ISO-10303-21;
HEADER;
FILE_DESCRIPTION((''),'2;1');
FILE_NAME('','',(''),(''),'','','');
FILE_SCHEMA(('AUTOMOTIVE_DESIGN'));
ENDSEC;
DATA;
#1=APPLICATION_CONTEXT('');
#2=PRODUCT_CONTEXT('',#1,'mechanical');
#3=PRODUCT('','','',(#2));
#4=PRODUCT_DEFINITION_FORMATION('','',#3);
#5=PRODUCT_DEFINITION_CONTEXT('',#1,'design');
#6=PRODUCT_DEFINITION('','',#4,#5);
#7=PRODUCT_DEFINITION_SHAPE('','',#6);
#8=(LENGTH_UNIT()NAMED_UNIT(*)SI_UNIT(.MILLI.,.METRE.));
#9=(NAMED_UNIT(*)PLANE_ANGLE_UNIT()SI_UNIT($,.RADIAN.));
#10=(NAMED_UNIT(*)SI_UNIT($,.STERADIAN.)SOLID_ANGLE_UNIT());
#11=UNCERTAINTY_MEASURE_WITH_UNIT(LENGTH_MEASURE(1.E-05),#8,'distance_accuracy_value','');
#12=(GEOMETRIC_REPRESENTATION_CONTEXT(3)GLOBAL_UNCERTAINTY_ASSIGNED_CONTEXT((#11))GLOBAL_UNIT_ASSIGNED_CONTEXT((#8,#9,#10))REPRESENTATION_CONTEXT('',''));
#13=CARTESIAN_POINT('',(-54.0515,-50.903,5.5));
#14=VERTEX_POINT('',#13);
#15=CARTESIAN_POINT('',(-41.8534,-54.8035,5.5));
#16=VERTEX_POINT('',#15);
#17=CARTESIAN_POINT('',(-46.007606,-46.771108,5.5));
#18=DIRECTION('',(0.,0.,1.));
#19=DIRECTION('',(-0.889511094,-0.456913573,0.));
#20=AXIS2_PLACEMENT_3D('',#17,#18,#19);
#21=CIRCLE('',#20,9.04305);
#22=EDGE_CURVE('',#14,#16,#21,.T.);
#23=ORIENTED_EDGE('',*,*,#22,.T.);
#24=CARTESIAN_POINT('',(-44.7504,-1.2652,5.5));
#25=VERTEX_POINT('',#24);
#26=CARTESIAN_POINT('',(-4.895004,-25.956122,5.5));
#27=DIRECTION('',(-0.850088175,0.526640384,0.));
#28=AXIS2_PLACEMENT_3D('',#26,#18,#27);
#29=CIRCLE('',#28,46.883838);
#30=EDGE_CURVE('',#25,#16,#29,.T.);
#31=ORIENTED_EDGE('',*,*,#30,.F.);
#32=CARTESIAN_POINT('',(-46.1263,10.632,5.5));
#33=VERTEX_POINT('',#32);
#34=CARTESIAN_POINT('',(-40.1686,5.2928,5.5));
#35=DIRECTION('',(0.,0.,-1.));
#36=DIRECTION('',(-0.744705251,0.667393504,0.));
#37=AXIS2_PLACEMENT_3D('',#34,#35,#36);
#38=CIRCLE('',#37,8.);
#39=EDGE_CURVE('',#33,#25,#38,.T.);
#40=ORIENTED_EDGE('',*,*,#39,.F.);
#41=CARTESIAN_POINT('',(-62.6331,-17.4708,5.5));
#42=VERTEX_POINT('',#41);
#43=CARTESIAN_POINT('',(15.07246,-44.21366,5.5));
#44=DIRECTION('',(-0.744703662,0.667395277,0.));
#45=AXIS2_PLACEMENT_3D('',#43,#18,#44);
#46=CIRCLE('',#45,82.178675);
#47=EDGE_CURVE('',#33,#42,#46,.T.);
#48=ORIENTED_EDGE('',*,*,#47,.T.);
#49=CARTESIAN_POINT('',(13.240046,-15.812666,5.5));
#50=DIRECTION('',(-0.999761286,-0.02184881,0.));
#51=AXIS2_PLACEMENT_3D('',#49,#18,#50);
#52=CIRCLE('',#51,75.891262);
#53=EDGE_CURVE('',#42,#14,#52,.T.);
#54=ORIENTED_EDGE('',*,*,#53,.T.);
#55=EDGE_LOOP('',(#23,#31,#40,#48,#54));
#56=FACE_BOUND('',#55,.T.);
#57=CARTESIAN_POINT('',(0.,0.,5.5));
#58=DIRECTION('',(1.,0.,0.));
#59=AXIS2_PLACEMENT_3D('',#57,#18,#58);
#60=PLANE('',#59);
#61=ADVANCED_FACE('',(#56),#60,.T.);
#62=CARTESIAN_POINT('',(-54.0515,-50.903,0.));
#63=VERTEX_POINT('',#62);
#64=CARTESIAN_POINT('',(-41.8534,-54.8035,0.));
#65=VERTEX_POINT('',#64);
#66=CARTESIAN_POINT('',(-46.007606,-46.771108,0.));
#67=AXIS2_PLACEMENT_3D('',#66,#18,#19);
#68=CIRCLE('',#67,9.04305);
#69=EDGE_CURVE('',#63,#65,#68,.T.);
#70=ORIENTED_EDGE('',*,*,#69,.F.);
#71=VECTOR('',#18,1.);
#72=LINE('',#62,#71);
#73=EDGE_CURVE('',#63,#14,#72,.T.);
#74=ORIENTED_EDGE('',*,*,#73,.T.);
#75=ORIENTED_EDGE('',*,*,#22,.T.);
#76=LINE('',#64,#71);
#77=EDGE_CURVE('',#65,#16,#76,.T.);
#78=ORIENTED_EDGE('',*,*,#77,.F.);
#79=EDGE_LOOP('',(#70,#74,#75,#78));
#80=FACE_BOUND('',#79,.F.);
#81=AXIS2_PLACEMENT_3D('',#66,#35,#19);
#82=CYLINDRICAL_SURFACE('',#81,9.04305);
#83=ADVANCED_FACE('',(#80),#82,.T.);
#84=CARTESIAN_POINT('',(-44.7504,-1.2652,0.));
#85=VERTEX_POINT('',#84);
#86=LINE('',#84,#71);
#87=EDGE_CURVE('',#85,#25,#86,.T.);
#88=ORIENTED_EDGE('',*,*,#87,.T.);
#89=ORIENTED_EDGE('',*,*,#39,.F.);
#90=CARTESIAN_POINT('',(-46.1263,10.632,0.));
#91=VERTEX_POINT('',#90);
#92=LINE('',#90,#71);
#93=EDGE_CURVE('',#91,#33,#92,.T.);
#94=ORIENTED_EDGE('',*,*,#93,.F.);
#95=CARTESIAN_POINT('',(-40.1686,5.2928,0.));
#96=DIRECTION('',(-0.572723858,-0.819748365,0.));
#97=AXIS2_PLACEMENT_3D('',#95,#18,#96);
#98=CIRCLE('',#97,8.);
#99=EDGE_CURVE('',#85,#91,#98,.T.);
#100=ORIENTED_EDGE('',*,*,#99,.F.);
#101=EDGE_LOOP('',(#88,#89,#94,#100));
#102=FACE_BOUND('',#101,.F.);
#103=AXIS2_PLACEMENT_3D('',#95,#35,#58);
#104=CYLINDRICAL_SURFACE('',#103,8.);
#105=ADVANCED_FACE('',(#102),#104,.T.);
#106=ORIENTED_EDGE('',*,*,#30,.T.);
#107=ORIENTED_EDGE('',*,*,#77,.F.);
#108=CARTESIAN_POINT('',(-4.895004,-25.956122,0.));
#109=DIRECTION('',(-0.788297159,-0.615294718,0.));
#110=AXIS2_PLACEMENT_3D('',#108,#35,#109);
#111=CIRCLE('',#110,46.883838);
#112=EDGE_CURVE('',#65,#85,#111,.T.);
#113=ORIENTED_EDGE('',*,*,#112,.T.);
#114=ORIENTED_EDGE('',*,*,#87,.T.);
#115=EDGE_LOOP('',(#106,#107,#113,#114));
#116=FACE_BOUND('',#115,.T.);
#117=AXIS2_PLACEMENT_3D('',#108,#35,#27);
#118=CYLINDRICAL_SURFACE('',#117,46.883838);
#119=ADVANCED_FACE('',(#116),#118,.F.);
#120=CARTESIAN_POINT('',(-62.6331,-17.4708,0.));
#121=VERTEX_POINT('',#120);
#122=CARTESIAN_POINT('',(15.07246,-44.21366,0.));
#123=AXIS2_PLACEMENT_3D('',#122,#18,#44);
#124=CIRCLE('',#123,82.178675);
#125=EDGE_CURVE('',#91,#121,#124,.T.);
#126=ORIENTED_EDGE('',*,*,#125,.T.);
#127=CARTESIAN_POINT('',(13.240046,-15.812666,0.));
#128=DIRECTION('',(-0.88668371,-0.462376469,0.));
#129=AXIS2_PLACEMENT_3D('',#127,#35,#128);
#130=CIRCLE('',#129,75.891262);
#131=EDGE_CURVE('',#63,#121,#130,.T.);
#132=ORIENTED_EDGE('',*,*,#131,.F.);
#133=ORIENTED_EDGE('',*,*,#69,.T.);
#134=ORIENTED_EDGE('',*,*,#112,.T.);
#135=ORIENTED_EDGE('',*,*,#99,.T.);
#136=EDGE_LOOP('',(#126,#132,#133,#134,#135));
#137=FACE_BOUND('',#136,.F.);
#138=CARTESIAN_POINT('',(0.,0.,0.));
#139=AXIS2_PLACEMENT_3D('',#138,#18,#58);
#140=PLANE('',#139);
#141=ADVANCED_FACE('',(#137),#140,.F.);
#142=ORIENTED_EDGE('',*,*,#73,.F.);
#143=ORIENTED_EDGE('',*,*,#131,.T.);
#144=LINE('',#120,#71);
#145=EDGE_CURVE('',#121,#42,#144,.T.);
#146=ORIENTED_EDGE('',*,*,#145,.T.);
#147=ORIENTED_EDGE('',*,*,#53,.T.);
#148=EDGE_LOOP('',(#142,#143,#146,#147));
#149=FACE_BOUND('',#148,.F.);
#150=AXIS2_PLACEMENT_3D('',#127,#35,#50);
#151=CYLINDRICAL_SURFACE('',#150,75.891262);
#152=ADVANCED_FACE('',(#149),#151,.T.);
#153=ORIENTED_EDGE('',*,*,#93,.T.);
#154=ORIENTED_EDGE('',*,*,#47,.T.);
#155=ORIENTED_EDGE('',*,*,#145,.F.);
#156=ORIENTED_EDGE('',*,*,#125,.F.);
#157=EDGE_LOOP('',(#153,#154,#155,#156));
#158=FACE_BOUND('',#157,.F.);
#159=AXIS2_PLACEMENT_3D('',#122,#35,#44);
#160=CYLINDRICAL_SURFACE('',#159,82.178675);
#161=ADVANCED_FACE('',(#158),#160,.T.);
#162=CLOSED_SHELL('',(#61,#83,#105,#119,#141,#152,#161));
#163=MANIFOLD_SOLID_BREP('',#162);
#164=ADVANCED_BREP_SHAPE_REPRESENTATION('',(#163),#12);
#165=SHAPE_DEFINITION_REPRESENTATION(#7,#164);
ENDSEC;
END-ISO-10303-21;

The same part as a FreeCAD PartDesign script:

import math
import FreeCAD as App
import Part
import Sketcher

doc = App.newDocument("Part")
body = doc.addObject("PartDesign::Body", "Body")

# Sketch on XY plane
sketch1 = body.newObject("Sketcher::SketchObject", "Sketch")
sketch1.AttachmentSupport = (doc.getObject("XY_Plane"), [""])
sketch1.MapMode = "FlatFace"
sketch1.addGeometry(Part.ArcOfCircle(Part.Circle(App.Vector(-40.1686, 5.2928, 0), App.Vector(0, 0, 1), 8), math.radians(-124.940388), math.radians(138.133788)), False)
sketch1.addGeometry(Part.ArcOfCircle(Part.Circle(App.Vector(15.0732, -44.2142, 0), App.Vector(0, 0, 1), 82.179587), math.radians(138.133716), math.radians(161.008586)), False)
sketch1.addGeometry(Part.ArcOfCircle(Part.Circle(App.Vector(13.2398, -15.8127, 0), App.Vector(0, 0, 1), 75.891016), math.radians(-178.748077), math.radians(-152.459373)), False)
sketch1.addGeometry(Part.ArcOfCircle(Part.Circle(App.Vector(-46.0076, -46.7711, 0), App.Vector(0, 0, 1), 9.043059), math.radians(-152.811851), math.radians(-62.65288)), False)
sketch1.addGeometry(Part.ArcOfCircle(Part.Circle(App.Vector(-4.8947, -25.9562, 0), App.Vector(0, 0, 1), 46.884137), math.radians(148.221376), math.radians(217.973035)), False)
sketch1.addConstraint(Sketcher.Constraint("Tangent", 0, 2, 1, 1))
sketch1.addConstraint(Sketcher.Constraint("Coincident", 1, 2, 2, 1))
sketch1.addConstraint(Sketcher.Constraint("Coincident", 2, 2, 3, 1))
sketch1.addConstraint(Sketcher.Constraint("Coincident", 3, 2, 4, 2))
sketch1.addConstraint(Sketcher.Constraint("Coincident", 4, 1, 0, 1))
sketch1.addConstraint(Sketcher.Constraint("Radius", 0, 8.0))
sketch1.addConstraint(Sketcher.Constraint("Radius", 2, 75.891))
sketch1.addConstraint(Sketcher.Constraint("Radius", 3, 9.043))
sketch1.addConstraint(Sketcher.Constraint("Radius", 1, 82.1796))
sketch1.addConstraint(Sketcher.Constraint("Radius", 4, 46.8841))
sketch1.addConstraint(Sketcher.Constraint("DistanceY", 3, 3, -1, 1, 46.771))
sketch1.addConstraint(Sketcher.Constraint("DistanceY", -1, 1, 0, 2, 10.632))
sketch1.addConstraint(Sketcher.Constraint("DistanceY", 2, 2, -1, 1, 50.903))
sketch1.addConstraint(Sketcher.Constraint("DistanceY", 1, 3, 0, 3, 49.507))
sketch1.addConstraint(Sketcher.Constraint("DistanceX", 3, 3, 0, 3, 5.839))
sketch1.addConstraint(Sketcher.Constraint("DistanceX", 4, 3, 1, 3, 19.968))
sketch1.addConstraint(Sketcher.Constraint("DistanceY", 1, 3, 4, 3, 18.258))
sketch1.addConstraint(Sketcher.Constraint("DistanceX", 0, 2, 2, 3, 59.366))
sketch1.addConstraint(Sketcher.Constraint("DistanceX", 0, 3, -1, 1, 40.1686))
pad1 = body.newObject("PartDesign::Pad", "Pad")
pad1.Profile = sketch1
pad1.Length = 5.5

doc.recompute()
